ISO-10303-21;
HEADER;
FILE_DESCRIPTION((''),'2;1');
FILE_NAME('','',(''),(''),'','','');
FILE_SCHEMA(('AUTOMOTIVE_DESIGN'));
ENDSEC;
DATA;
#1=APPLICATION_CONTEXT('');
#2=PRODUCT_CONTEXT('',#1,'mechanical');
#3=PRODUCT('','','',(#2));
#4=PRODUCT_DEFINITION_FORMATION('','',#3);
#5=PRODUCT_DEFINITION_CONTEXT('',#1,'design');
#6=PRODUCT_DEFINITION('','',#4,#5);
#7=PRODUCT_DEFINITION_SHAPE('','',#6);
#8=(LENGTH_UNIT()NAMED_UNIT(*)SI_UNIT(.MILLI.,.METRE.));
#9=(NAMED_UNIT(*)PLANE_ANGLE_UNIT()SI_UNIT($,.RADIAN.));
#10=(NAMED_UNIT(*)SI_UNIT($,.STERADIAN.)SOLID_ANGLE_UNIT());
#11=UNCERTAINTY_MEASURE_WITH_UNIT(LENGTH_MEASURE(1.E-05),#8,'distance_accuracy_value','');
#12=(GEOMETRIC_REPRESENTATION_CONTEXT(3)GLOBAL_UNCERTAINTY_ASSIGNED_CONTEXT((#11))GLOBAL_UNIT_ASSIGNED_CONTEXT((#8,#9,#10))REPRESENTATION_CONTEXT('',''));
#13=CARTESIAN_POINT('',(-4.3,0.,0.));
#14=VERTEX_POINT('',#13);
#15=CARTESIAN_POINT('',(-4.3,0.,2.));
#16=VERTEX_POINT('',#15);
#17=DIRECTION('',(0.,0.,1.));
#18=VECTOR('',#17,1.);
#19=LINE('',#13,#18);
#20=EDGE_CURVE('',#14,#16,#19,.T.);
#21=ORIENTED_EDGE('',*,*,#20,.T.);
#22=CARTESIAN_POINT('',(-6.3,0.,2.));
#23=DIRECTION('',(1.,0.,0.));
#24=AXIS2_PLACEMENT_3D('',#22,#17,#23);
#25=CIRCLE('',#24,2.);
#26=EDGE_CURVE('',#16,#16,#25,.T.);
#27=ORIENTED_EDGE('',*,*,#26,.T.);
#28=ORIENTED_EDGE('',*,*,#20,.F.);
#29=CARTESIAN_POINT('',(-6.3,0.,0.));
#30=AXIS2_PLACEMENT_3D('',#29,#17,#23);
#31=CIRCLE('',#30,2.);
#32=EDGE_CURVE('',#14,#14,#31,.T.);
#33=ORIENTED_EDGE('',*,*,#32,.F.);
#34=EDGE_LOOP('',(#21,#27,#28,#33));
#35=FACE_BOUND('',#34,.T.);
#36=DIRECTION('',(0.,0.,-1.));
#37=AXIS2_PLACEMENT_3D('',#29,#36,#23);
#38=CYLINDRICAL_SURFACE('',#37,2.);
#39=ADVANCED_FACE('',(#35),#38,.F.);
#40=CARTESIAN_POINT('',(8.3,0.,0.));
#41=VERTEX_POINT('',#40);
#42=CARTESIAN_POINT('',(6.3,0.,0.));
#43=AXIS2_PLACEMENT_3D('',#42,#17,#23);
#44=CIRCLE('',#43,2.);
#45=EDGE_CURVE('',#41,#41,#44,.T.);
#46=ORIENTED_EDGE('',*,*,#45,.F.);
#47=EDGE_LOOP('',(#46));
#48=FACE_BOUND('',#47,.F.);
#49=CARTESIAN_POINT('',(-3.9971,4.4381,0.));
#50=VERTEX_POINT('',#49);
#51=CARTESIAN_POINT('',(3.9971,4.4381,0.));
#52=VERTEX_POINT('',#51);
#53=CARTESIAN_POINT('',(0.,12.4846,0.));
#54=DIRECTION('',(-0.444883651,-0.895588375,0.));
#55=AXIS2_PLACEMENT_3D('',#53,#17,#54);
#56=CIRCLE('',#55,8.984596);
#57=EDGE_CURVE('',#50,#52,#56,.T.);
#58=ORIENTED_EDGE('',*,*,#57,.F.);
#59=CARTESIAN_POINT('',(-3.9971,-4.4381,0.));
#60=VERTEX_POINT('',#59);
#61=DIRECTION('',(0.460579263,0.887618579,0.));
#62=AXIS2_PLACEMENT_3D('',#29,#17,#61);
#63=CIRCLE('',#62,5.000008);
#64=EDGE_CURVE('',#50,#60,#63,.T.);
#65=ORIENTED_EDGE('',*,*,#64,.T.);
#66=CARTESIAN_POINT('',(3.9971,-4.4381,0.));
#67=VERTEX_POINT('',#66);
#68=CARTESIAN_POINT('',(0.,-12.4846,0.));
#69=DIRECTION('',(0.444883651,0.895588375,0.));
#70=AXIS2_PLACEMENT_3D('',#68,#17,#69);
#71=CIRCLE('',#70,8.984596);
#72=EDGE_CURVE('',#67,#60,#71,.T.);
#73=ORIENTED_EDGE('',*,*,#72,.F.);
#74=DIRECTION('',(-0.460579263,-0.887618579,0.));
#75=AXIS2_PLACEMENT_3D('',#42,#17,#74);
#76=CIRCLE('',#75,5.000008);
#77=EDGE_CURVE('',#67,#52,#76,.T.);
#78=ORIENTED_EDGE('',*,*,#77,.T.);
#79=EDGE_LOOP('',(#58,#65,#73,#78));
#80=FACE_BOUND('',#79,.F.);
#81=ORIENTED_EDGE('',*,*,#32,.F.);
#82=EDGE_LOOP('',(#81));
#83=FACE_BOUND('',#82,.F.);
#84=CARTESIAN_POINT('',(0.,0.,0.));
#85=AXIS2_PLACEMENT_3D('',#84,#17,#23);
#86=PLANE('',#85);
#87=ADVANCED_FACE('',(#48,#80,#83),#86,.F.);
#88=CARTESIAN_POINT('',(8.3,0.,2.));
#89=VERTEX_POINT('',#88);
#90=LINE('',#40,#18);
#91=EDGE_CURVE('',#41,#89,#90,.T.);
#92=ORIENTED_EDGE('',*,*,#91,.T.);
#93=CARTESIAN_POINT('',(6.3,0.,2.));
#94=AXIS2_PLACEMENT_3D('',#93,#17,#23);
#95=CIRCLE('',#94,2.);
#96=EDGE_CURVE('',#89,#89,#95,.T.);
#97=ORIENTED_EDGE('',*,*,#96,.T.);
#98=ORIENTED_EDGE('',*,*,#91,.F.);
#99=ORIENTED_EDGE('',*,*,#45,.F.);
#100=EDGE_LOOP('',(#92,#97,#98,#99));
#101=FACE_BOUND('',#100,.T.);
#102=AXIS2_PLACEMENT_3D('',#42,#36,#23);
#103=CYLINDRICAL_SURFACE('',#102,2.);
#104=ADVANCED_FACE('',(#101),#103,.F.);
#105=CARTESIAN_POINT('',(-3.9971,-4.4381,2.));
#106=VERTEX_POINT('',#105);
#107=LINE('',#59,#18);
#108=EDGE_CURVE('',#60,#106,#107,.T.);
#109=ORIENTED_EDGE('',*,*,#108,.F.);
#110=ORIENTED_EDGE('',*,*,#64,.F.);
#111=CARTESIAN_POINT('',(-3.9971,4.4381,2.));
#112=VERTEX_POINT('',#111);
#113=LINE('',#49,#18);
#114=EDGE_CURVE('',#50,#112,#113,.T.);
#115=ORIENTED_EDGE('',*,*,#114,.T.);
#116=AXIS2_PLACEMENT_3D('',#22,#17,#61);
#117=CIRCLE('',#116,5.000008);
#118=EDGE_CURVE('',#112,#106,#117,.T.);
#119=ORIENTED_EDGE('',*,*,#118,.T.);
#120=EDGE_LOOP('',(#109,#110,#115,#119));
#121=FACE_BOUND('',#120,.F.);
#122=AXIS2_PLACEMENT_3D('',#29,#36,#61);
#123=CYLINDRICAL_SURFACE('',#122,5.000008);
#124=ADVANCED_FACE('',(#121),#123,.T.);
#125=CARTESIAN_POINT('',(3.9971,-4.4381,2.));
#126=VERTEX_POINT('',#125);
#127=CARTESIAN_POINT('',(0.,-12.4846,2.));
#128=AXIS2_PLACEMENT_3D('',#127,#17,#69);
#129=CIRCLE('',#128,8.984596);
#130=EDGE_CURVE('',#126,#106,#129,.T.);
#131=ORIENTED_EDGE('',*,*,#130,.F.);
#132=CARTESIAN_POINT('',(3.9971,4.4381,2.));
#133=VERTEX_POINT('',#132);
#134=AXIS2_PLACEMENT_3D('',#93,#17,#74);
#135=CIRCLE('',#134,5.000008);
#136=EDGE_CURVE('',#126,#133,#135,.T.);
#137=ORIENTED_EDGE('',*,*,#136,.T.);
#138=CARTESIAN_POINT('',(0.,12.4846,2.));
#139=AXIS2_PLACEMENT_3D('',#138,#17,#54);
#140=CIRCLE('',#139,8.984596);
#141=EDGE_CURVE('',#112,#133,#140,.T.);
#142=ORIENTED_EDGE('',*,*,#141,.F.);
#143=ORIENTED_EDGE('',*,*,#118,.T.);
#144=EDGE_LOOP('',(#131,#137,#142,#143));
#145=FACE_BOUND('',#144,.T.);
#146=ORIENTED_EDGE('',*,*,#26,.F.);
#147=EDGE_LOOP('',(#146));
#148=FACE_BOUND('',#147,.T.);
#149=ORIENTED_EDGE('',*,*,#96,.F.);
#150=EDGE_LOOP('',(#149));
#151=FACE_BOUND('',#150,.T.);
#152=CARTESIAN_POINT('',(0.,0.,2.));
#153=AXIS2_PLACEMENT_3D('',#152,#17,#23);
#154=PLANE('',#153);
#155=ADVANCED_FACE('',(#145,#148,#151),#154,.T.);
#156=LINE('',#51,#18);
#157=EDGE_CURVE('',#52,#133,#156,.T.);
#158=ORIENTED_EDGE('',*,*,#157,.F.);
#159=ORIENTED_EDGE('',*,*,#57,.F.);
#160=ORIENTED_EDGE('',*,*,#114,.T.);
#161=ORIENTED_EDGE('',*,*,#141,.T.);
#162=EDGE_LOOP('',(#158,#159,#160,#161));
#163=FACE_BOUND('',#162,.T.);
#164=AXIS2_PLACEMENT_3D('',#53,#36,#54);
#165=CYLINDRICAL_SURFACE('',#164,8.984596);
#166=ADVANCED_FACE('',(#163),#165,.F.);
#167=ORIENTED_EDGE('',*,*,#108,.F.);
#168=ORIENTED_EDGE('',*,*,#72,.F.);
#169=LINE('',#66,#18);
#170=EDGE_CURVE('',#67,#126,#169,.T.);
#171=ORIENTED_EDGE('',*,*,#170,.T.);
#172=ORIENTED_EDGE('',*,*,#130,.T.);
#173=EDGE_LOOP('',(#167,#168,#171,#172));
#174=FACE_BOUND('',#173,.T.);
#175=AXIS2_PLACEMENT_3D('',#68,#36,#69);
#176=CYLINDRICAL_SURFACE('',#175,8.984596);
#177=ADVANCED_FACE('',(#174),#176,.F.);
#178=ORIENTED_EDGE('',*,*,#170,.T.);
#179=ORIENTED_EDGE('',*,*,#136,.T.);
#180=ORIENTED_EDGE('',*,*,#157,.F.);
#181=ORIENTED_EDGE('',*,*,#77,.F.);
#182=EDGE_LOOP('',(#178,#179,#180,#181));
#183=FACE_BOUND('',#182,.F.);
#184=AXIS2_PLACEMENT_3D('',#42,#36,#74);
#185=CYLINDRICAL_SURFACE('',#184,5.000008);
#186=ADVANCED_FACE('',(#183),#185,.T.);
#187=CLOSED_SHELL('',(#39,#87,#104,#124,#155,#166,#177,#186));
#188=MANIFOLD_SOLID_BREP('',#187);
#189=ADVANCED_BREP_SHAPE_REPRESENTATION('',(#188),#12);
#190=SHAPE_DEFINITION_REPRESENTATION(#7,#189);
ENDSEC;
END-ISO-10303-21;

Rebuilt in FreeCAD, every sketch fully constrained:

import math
import FreeCAD as App
import Part
import Sketcher

doc = App.newDocument("Part")
body = doc.addObject("PartDesign::Body", "Body")

# Sketch on XY plane
sketch1 = body.newObject("Sketcher::SketchObject", "Sketch")
sketch1.AttachmentSupport = (doc.getObject("XY_Plane"), [""])
sketch1.MapMode = "FlatFace"
sketch1.addGeometry(Part.ArcOfCircle(Part.Circle(App.Vector(0, 12.4846, 0), App.Vector(0, 0, 1), 8.984596), math.radians(-116.415895), math.radians(-63.584105)), False)
sketch1.addGeometry(Part.ArcOfCircle(Part.Circle(App.Vector(-6.3, 0, 0), App.Vector(0, 0, 1), 5.000008), math.radians(62.575507), math.radians(297.424493)), False)
sketch1.addGeometry(Part.ArcOfCircle(Part.Circle(App.Vector(0, -12.4846, 0), App.Vector(0, 0, 1), 8.984596), math.radians(63.584105), math.radians(116.415895)), False)
sketch1.addGeometry(Part.ArcOfCircle(Part.Circle(App.Vector(6.3, 0, 0), App.Vector(0, 0, 1), 5.000008), math.radians(-117.424493), math.radians(117.424493)), False)
sketch1.addGeometry(Part.Circle(App.Vector(-6.3, 0, 0), App.Vector(0, 0, 1), 2), False)
sketch1.addGeometry(Part.Circle(App.Vector(6.3, 0, 0), App.Vector(0, 0, 1), 2), False)
sketch1.addConstraint(Sketcher.Constraint("Coincident", 0, 1, 1, 1))
sketch1.addConstraint(Sketcher.Constraint("Coincident", 1, 2, 2, 2))
sketch1.addConstraint(Sketcher.Constraint("Coincident", 2, 1, 3, 1))
sketch1.addConstraint(Sketcher.Constraint("Coincident", 3, 2, 0, 2))
sketch1.addConstraint(Sketcher.Constraint("Coincident", 4, 3, 1, 3))
sketch1.addConstraint(Sketcher.Constraint("Coincident", 5, 3, 3, 3))
sketch1.addConstraint(Sketcher.Constraint("Equal", 0, 2))
sketch1.addConstraint(Sketcher.Constraint("Equal", 1, 3))
sketch1.addConstraint(Sketcher.Constraint("Equal", 4, 5))
sketch1.addConstraint(Sketcher.Constraint("Symmetric", 0, 3, 2, 3, -1, 1))
sketch1.addConstraint(Sketcher.Constraint("Symmetric", 1, 3, 3, 3, -1, 1))
sketch1.addConstraint(Sketcher.Constraint("Symmetric", 1, 2, 2, 1, -2))
sketch1.addConstraint(Sketcher.Constraint("Diameter", 4, 4.0))
sketch1.addConstraint(Sketcher.Constraint("Radius", 1, 5.0))
sketch1.addConstraint(Sketcher.Constraint("DistanceX", 1, 3, 3, 3, 12.6))
sketch1.addConstraint(Sketcher.Constraint("Radius", 0, 8.9846))
sketch1.addConstraint(Sketcher.Constraint("DistanceX", 0, 1, -1, 1, 3.997))
pad1 = body.newObject("PartDesign::Pad", "Pad")
pad1.Profile = sketch1
pad1.Length = 2

doc.recompute()
